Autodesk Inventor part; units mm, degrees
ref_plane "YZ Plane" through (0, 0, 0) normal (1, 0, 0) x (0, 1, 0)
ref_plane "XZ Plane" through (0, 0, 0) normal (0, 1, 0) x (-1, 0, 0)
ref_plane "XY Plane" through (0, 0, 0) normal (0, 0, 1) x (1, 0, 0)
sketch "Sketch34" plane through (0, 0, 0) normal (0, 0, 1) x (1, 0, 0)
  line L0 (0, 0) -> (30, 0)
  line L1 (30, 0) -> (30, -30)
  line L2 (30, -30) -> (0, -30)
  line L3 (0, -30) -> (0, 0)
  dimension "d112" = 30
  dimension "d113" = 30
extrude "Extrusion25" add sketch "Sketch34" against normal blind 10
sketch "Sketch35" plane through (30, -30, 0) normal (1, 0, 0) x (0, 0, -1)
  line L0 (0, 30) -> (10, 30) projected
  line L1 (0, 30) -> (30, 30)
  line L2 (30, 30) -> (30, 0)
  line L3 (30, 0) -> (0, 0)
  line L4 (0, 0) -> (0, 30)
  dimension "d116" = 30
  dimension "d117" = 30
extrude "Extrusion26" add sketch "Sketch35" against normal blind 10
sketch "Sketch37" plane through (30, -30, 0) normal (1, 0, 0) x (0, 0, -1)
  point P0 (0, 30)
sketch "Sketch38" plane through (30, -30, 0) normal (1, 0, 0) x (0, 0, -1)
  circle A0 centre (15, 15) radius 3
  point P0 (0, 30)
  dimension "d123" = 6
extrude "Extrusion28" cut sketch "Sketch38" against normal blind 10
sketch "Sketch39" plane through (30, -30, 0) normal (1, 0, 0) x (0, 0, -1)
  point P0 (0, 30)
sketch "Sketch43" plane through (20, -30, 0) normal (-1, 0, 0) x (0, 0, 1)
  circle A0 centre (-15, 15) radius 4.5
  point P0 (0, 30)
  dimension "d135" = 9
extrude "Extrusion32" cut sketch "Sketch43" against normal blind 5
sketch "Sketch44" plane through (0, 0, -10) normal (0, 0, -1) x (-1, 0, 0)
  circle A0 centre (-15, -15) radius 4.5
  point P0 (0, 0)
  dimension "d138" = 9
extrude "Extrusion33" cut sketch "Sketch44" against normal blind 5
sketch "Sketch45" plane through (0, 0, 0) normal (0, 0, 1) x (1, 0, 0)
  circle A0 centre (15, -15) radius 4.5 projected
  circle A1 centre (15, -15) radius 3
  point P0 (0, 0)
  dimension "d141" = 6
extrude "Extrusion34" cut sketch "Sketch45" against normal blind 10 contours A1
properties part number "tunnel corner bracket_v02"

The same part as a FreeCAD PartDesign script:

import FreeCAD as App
import Part
import Sketcher

V = App.Vector
Q = App.Units.Quantity

doc = App.newDocument("Part")
body = doc.addObject("PartDesign::Body", "Body")

# Sketch on XY plane
sketch1 = doc.addObject("Sketcher::SketchObject", "Sketch")
body.addObject(sketch1)
sketch1.AttachmentSupport = (doc.XY_Plane, [""])
sketch1.MapMode = "FlatFace"
sketch1.addGeometry(Part.LineSegment(V(30, 0, 0), V(0, 0, 0)), False)
sketch1.addGeometry(Part.LineSegment(V(0, 0, 0), V(0, -30, 0)), False)
sketch1.addGeometry(Part.LineSegment(V(0, -30, 0), V(30, -30, 0)), False)
sketch1.addGeometry(Part.LineSegment(V(30, -30, 0), V(30, 0, 0)), False)
sketch1.addConstraint(Sketcher.Constraint("Coincident", 0, 2, 1, 1))
sketch1.addConstraint(Sketcher.Constraint("Coincident", 1, 2, 2, 1))
sketch1.addConstraint(Sketcher.Constraint("Coincident", 2, 2, 3, 1))
sketch1.addConstraint(Sketcher.Constraint("Coincident", 3, 2, 0, 1))
sketch1.addConstraint(Sketcher.Constraint("Horizontal", 0))
sketch1.addConstraint(Sketcher.Constraint("Vertical", 1))
sketch1.addConstraint(Sketcher.Constraint("Horizontal", 2))
sketch1.addConstraint(Sketcher.Constraint("Vertical", 3))
sketch1.addConstraint(Sketcher.Constraint("Coincident", 0, 2, -1, 1))
sketch1.addConstraint(Sketcher.Constraint("Equal", 2, 1))
sketch1.addConstraint(Sketcher.Constraint("DistanceX", 0, 2, 0, 1, Q("30 mm")))
pad1 = doc.addObject("PartDesign::Pad", "Pad")
body.addObject(pad1)
pad1.Profile = sketch1
pad1.Length = 10
pad1.Reversed = True

# Sketch on YZ plane
sketch2 = doc.addObject("Sketcher::SketchObject", "Sketch001")
body.addObject(sketch2)
sketch2.AttachmentSupport = (doc.YZ_Plane, [""])
sketch2.MapMode = "FlatFace"
sketch2.AttachmentOffset = App.Placement(V(0, 0, 30), App.Rotation())
sketch2.addGeometry(Part.LineSegment(V(0, -30, 0), V(0, 0, 0)), False)
sketch2.addGeometry(Part.LineSegment(V(0, 0, 0), V(-30, 0, 0)), False)
sketch2.addGeometry(Part.LineSegment(V(-30, 0, 0), V(-30, -30, 0)), False)
sketch2.addGeometry(Part.LineSegment(V(-30, -30, 0), V(0, -30, 0)), False)
sketch2.addConstraint(Sketcher.Constraint("Coincident", 0, 2, 1, 1))
sketch2.addConstraint(Sketcher.Constraint("Coincident", 1, 2, 2, 1))
sketch2.addConstraint(Sketcher.Constraint("Coincident", 2, 2, 3, 1))
sketch2.addConstraint(Sketcher.Constraint("Coincident", 3, 2, 0, 1))
sketch2.addConstraint(Sketcher.Constraint("Vertical", 0))
sketch2.addConstraint(Sketcher.Constraint("Horizontal", 1))
sketch2.addConstraint(Sketcher.Constraint("Vertical", 2))
sketch2.addConstraint(Sketcher.Constraint("Horizontal", 3))
sketch2.addConstraint(Sketcher.Constraint("Coincident", 0, 2, -1, 1))
sketch2.addConstraint(Sketcher.Constraint("Equal", 3, 0))
sketch2.addConstraint(Sketcher.Constraint("DistanceX", 1, 2, 1, 1, Q("30 mm")))
pad2 = doc.addObject("PartDesign::Pad", "Pad001")
body.addObject(pad2)
pad2.Profile = sketch2
pad2.Length = 10
pad2.Reversed = True

# Sketch on YZ plane
sketch3 = doc.addObject("Sketcher::SketchObject", "Sketch002")
body.addObject(sketch3)
sketch3.AttachmentSupport = (doc.YZ_Plane, [""])
sketch3.MapMode = "FlatFace"
sketch3.AttachmentOffset = App.Placement(V(0, 0, 30), App.Rotation())
sketch3.addGeometry(Part.Circle(V(-15, -15, 0), V(0, 0, 1), 3), False)
sketch3.addConstraint(Sketcher.Constraint("Diameter", 0, Q("6 mm")))
sketch3.addConstraint(Sketcher.Constraint("DistanceX", 0, 3, -1, 1, Q("15 mm")))
sketch3.addConstraint(Sketcher.Constraint("DistanceY", 0, 3, -1, 1, Q("15 mm")))
pocket1 = doc.addObject("PartDesign::Pocket", "Pocket")
body.addObject(pocket1)
pocket1.Profile = sketch3
pocket1.Length = 10

# Sketch on YZ plane
sketch4 = doc.addObject("Sketcher::SketchObject", "Sketch003")
body.addObject(sketch4)
sketch4.AttachmentSupport = (doc.YZ_Plane, [""])
sketch4.MapMode = "FlatFace"
sketch4.AttachmentOffset = App.Placement(V(0, 0, 20), App.Rotation())
sketch4.addGeometry(Part.Circle(V(-15, -15, 0), V(0, 0, 1), 4.5), False)
sketch4.addConstraint(Sketcher.Constraint("Diameter", 0, Q("9 mm")))
sketch4.addConstraint(Sketcher.Constraint("DistanceX", 0, 3, -1, 1, Q("15 mm")))
sketch4.addConstraint(Sketcher.Constraint("DistanceY", 0, 3, -1, 1, Q("15 mm")))
pocket2 = doc.addObject("PartDesign::Pocket", "Pocket001")
body.addObject(pocket2)
pocket2.Profile = sketch4
pocket2.Length = 5
pocket2.Reversed = True

# Sketch on XY plane
sketch5 = doc.addObject("Sketcher::SketchObject", "Sketch004")
body.addObject(sketch5)
sketch5.AttachmentSupport = (doc.XY_Plane, [""])
sketch5.MapMode = "FlatFace"
sketch5.AttachmentOffset = App.Placement(V(0, 0, -10), App.Rotation())
sketch5.addGeometry(Part.Circle(V(15, -15, 0), V(0, 0, 1), 4.5), False)
sketch5.addConstraint(Sketcher.Constraint("Diameter", 0, Q("9 mm")))
sketch5.addConstraint(Sketcher.Constraint("DistanceX", -1, 1, 0, 3, Q("15 mm")))
sketch5.addConstraint(Sketcher.Constraint("DistanceY", 0, 3, -1, 1, Q("15 mm")))
pocket3 = doc.addObject("PartDesign::Pocket", "Pocket002")
body.addObject(pocket3)
pocket3.Profile = sketch5
pocket3.Length = 5
pocket3.Reversed = True

# Sketch on XY plane
sketch6 = doc.addObject("Sketcher::SketchObject", "Sketch005")
body.addObject(sketch6)
sketch6.AttachmentSupport = (doc.XY_Plane, [""])
sketch6.MapMode = "FlatFace"
sketch6.addGeometry(Part.Circle(V(15, -15, 0), V(0, 0, 1), 3), False)
sketch6.addConstraint(Sketcher.Constraint("Diameter", 0, Q("6 mm")))
sketch6.addConstraint(Sketcher.Constraint("DistanceX", -1, 1, 0, 3, Q("15 mm")))
sketch6.addConstraint(Sketcher.Constraint("DistanceY", 0, 3, -1, 1, Q("15 mm")))
pocket4 = doc.addObject("PartDesign::Pocket", "Pocket003")
body.addObject(pocket4)
pocket4.Profile = sketch6
pocket4.Length = 10

doc.recompute()
